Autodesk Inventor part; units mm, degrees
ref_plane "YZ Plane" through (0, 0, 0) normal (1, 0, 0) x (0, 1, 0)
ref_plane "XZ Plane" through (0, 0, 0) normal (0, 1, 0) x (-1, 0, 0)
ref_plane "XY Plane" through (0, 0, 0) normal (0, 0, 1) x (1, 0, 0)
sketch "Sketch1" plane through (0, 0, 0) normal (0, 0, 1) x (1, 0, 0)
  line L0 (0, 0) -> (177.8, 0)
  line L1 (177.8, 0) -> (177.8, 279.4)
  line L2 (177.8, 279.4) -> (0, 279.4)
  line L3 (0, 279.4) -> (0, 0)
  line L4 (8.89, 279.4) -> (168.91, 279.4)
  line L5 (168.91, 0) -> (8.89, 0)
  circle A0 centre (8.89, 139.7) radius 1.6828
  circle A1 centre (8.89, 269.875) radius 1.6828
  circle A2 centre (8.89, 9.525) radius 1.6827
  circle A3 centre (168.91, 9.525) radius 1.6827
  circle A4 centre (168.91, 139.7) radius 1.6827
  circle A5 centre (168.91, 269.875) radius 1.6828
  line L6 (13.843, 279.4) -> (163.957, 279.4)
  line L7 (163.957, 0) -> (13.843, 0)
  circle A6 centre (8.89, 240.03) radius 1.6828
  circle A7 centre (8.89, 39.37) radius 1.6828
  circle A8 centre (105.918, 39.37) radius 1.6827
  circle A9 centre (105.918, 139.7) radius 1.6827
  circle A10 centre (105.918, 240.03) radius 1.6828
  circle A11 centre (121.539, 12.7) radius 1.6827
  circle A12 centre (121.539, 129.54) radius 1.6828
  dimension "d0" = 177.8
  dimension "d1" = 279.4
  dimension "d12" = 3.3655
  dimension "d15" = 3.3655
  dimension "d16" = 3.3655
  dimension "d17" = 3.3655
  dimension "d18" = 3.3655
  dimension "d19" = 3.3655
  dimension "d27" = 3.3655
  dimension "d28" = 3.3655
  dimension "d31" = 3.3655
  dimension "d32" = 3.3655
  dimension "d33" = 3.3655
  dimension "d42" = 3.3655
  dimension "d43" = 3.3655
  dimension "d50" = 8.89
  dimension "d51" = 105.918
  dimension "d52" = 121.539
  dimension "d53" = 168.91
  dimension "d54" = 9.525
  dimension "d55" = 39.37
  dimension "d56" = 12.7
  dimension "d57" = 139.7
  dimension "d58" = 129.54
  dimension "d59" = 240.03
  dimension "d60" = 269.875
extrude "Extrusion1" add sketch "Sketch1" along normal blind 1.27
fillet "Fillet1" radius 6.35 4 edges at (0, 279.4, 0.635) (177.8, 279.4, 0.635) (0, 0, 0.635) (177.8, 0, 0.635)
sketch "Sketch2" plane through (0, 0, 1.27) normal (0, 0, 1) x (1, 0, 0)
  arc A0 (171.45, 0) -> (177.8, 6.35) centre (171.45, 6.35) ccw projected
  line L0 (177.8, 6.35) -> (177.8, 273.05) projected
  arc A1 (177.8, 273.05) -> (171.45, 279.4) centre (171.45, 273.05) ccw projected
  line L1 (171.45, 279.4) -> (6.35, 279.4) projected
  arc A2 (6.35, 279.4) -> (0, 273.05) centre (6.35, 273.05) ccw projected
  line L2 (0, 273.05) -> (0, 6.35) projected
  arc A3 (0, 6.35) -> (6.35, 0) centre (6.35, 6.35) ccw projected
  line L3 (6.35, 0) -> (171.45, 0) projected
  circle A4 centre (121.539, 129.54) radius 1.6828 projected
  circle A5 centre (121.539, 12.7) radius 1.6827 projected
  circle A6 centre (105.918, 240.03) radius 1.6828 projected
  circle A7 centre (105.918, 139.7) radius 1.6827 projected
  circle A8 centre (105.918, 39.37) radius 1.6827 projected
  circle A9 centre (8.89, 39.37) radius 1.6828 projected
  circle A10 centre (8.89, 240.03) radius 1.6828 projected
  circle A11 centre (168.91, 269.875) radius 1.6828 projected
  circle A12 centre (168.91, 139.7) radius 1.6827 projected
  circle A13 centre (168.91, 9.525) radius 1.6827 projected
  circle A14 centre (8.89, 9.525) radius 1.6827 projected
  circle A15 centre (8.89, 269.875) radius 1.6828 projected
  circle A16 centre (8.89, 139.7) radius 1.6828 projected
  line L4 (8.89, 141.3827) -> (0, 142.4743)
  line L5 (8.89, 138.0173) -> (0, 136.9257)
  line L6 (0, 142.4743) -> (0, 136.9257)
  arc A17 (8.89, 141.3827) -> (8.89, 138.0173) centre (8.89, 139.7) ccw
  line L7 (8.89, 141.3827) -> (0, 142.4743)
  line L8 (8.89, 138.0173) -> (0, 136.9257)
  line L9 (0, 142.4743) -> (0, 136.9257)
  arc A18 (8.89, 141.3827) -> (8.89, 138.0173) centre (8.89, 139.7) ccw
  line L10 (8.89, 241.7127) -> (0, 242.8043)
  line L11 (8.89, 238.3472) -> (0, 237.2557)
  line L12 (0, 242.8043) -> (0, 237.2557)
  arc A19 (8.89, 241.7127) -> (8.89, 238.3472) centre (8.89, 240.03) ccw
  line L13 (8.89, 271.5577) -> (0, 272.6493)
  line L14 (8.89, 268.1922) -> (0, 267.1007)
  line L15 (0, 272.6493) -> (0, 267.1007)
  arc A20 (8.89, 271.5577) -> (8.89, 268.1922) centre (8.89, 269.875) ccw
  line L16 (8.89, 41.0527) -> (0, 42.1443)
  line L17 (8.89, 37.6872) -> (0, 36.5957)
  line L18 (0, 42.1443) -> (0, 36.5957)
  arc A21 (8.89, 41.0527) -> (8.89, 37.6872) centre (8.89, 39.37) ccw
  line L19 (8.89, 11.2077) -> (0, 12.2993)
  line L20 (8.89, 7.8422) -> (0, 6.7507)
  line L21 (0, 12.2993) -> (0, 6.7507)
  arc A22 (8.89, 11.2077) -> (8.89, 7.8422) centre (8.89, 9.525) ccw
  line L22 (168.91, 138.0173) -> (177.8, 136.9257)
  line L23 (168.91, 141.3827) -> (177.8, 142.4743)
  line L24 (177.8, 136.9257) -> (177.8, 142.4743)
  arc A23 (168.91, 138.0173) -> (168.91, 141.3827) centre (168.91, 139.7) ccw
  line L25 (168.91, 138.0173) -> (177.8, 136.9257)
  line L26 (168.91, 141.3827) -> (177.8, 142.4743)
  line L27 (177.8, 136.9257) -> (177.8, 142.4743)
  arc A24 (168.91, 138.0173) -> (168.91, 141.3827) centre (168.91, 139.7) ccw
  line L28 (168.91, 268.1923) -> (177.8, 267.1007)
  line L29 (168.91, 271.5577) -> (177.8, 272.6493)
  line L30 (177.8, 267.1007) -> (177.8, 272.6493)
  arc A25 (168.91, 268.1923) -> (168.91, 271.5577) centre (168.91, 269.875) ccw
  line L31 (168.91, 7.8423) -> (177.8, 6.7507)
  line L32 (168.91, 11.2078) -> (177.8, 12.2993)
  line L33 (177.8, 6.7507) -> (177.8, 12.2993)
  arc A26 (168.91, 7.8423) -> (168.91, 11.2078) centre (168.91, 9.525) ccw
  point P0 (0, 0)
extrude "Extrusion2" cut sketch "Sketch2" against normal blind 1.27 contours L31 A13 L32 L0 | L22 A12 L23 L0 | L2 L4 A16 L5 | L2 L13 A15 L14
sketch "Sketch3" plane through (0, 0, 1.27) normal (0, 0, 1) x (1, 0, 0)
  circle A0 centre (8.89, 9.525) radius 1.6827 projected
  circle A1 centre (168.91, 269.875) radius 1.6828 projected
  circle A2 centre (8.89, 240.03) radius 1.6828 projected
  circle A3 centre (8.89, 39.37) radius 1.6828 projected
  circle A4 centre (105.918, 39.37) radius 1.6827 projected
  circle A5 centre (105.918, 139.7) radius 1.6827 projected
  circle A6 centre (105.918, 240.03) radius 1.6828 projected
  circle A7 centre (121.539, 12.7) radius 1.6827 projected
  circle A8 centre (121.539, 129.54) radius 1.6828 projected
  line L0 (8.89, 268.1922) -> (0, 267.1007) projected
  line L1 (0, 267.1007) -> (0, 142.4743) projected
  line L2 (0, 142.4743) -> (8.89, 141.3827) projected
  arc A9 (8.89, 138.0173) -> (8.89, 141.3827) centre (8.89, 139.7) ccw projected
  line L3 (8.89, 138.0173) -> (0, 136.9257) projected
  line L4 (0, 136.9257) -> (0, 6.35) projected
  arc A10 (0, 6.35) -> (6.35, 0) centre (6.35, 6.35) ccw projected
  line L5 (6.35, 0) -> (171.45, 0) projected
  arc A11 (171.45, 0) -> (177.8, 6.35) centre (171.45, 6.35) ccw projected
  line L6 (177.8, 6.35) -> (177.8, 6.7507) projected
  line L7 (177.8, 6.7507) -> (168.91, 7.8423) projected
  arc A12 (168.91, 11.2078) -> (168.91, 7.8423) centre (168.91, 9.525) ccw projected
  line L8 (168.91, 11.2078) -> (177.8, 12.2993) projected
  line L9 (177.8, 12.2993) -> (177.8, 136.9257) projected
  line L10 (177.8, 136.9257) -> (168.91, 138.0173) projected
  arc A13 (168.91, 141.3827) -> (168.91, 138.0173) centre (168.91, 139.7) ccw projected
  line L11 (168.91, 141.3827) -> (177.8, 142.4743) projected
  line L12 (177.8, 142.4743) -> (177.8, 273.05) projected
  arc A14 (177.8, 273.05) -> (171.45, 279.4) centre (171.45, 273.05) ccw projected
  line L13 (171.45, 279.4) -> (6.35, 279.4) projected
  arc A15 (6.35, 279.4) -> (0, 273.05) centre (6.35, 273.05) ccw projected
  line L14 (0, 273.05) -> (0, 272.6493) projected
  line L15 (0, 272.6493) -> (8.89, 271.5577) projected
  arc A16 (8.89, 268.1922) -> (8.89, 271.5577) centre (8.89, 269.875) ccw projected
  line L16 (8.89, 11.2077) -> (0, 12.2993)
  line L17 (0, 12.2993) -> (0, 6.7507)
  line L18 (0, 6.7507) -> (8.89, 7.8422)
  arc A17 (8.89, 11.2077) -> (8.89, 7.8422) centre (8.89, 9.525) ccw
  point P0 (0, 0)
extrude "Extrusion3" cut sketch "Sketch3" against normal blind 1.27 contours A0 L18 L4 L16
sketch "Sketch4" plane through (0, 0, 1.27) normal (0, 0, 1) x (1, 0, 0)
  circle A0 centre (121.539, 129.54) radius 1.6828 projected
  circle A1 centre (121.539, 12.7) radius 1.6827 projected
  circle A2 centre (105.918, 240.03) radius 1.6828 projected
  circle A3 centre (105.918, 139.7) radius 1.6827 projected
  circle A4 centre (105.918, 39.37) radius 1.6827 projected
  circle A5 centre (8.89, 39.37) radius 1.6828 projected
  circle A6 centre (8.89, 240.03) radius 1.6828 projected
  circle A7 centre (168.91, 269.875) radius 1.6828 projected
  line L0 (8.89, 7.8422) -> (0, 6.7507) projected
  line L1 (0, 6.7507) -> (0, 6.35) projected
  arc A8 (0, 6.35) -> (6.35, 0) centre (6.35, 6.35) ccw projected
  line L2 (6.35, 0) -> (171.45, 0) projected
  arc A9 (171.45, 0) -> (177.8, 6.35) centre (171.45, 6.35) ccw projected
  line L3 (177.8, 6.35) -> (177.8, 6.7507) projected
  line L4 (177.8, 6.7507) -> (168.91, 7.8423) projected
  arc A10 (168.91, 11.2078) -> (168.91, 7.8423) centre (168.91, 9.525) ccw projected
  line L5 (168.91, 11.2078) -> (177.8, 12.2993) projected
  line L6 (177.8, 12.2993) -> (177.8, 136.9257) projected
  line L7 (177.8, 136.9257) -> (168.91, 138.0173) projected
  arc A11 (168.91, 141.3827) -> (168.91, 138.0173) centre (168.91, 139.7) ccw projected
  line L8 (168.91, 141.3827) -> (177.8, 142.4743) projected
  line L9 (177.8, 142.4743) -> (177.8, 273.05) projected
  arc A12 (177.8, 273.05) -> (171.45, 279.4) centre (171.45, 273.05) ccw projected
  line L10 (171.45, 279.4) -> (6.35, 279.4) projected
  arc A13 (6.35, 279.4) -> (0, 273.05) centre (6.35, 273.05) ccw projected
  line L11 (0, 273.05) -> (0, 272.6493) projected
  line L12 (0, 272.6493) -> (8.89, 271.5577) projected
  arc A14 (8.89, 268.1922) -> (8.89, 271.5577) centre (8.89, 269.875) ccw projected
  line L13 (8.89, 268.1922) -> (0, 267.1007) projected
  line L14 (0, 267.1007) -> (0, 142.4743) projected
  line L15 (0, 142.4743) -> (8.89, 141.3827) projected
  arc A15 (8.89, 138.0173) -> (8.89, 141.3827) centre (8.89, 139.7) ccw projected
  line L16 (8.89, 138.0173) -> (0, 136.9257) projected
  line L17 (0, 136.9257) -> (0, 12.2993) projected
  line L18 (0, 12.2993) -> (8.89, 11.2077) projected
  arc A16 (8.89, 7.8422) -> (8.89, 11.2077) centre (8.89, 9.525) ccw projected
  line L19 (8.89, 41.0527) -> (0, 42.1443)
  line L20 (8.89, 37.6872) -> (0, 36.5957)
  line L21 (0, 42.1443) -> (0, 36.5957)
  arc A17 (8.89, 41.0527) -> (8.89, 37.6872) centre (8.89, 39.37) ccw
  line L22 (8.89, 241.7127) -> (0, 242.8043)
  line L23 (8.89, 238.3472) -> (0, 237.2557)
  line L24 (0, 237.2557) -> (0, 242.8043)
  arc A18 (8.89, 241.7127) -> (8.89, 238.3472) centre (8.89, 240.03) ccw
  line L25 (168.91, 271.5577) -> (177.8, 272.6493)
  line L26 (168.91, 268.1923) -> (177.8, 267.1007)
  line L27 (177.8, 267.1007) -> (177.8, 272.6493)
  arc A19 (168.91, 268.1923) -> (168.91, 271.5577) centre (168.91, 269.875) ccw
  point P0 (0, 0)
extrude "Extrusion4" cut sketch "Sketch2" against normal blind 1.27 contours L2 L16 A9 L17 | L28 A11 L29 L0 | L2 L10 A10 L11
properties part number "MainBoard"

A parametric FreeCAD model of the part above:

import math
import FreeCAD as App
import Part
import Sketcher
Q = App.Units.Quantity


def edges_at(feature, points):
    """Names of the edges that pass closest to the given points."""
    edges = feature.Shape.Edges
    near = lambda p: min(range(len(edges)), key=lambda i: edges[i].distToShape(Part.Vertex(*p))[0])
    return sorted({f"Edge{near(p) + 1}" for p in points})

doc = App.newDocument("Part")
body = doc.addObject("PartDesign::Body", "Body")

# Sketch on XY plane
sketch1 = body.newObject("Sketcher::SketchObject", "Sketch")
sketch1.AttachmentSupport = (doc.getObject("XY_Plane"), [""])
sketch1.MapMode = "FlatFace"
sketch1.addGeometry([
    Part.LineSegment(App.Vector(0, 279.4, 0), App.Vector(0, 0, 0)),  # 0
    Part.LineSegment(App.Vector(0, 0, 0), App.Vector(177.8, 0, 0)),  # 1
    Part.LineSegment(App.Vector(177.8, 0, 0), App.Vector(177.8, 279.4, 0)),  # 2
    Part.LineSegment(App.Vector(177.8, 279.4, 0), App.Vector(0, 279.4, 0)),  # 3
    Part.Circle(App.Vector(8.9, 9.5, 0), App.Vector(0, 0, 1), 1.7),  # 4
    Part.Circle(App.Vector(8.9, 39.4, 0), App.Vector(0, 0, 1), 1.7),  # 5
    Part.Circle(App.Vector(121.5, 12.7, 0), App.Vector(0, 0, 1), 1.7),  # 6
    Part.Circle(App.Vector(105.9, 39.4, 0), App.Vector(0, 0, 1), 1.7),  # 7
    Part.Circle(App.Vector(168.9, 9.5, 0), App.Vector(0, 0, 1), 1.7),  # 8
    Part.Circle(App.Vector(121.5, 129.5, 0), App.Vector(0, 0, 1), 1.7),  # 9
    Part.Circle(App.Vector(8.9, 139.7, 0), App.Vector(0, 0, 1), 1.7),  # 10
    Part.Circle(App.Vector(8.9, 240, 0), App.Vector(0, 0, 1), 1.7),  # 11
    Part.Circle(App.Vector(8.9, 269.9, 0), App.Vector(0, 0, 1), 1.7),  # 12
    Part.Circle(App.Vector(105.9, 139.7, 0), App.Vector(0, 0, 1), 1.7),  # 13
    Part.Circle(App.Vector(168.9, 139.7, 0), App.Vector(0, 0, 1), 1.7),  # 14
    Part.Circle(App.Vector(105.9, 240, 0), App.Vector(0, 0, 1), 1.7),  # 15
    Part.Circle(App.Vector(168.9, 269.9, 0), App.Vector(0, 0, 1), 1.7),  # 16
], False)
sketch1.addConstraint([
    Sketcher.Constraint("Coincident", 0, 2, 1, 1),
    Sketcher.Constraint("Coincident", 1, 2, 2, 1),
    Sketcher.Constraint("Coincident", 2, 2, 3, 1),
    Sketcher.Constraint("Coincident", 3, 2, 0, 1),
    Sketcher.Constraint("Vertical", 0),
    Sketcher.Constraint("Horizontal", 1),
    Sketcher.Constraint("Vertical", 2),
    Sketcher.Constraint("Horizontal", 3),
    Sketcher.Constraint("Coincident", 0, 2, -1, 1),
    Sketcher.Constraint("Equal", 4, 5),
    Sketcher.Constraint("Equal", 5, 6),
    Sketcher.Constraint("Equal", 6, 7),
    Sketcher.Constraint("Equal", 7, 8),
    Sketcher.Constraint("Equal", 8, 9),
    Sketcher.Constraint("Equal", 9, 10),
    Sketcher.Constraint("Equal", 10, 11),
    Sketcher.Constraint("Equal", 11, 12),
    Sketcher.Constraint("Equal", 12, 13),
    Sketcher.Constraint("Equal", 13, 14),
    Sketcher.Constraint("Equal", 14, 15),
    Sketcher.Constraint("Equal", 15, 16),
    Sketcher.Constraint("Horizontal", 5, 3, 7, 3),
    Sketcher.Constraint("Horizontal", 4, 3, 8, 3),
    Sketcher.Constraint("Horizontal", 10, 3, 13, 3),
    Sketcher.Constraint("Horizontal", 13, 3, 14, 3),
    Sketcher.Constraint("Horizontal", 11, 3, 15, 3),
    Sketcher.Constraint("Horizontal", 12, 3, 16, 3),
    Sketcher.Constraint("Vertical", 4, 3, 5, 3),
    Sketcher.Constraint("Vertical", 6, 3, 9, 3),
    Sketcher.Constraint("Vertical", 5, 3, 10, 3),
    Sketcher.Constraint("Vertical", 10, 3, 11, 3),
    Sketcher.Constraint("Vertical", 11, 3, 12, 3),
    Sketcher.Constraint("Vertical", 7, 3, 13, 3),
    Sketcher.Constraint("Vertical", 8, 3, 14, 3),
    Sketcher.Constraint("Vertical", 13, 3, 15, 3),
    Sketcher.Constraint("Vertical", 14, 3, 16, 3),
    Sketcher.Constraint("DistanceX", 1, 1, 1, 2, Q("7 in")),
    Sketcher.Constraint("DistanceY", 0, 2, 0, 1, Q("11 in")),
    Sketcher.Constraint("Diameter", 4, Q("0.1325 in")),
    Sketcher.Constraint("DistanceY", -1, 1, 6, 3, Q("0.5 in")),
    Sketcher.Constraint("DistanceY", -1, 1, 9, 3, Q("5.1 in")),
    Sketcher.Constraint("DistanceY", -1, 1, 10, 3, Q("5.5 in")),
    Sketcher.Constraint("DistanceX", -1, 1, 4, 3, Q("0.35 in")),
    Sketcher.Constraint("DistanceY", -1, 1, 5, 3, Q("1.55 in")),
    Sketcher.Constraint("DistanceX", -1, 1, 7, 3, Q("4.17 in")),
    Sketcher.Constraint("DistanceX", -1, 1, 8, 3, Q("6.65 in")),
    Sketcher.Constraint("DistanceY", -1, 1, 11, 3, Q("9.45 in")),
    Sketcher.Constraint("DistanceY", -1, 1, 4, 3, Q("0.375 in")),
    Sketcher.Constraint("DistanceX", -1, 1, 6, 3, Q("4.785 in")),
    Sketcher.Constraint("DistanceY", -1, 1, 12, 3, Q("10.625 in")),
])
pad1 = body.newObject("PartDesign::Pad", "Pad")
pad1.Profile = sketch1
pad1.Length = Q("0.05 in")
doc.recompute()

fillet = body.newObject("PartDesign::Fillet", "Fillet")
fillet.Base = (pad1, edges_at(pad1, [
    (0, 279.4, 0.635),
    (177.8, 279.4, 0.635),
    (0, 0, 0.635),
    (177.8, 0, 0.635),
]))
fillet.Radius = Q("0.25 in")

# Sketch on XY plane
sketch2 = body.newObject("Sketcher::SketchObject", "Sketch001")
sketch2.AttachmentSupport = (doc.getObject("XY_Plane"), [""])
sketch2.MapMode = "FlatFace"
sketch2.AttachmentOffset = App.Placement(App.Vector(0, 0, 0.05 * 25.4), App.Rotation())
sketch2.addGeometry([
    Part.LineSegment(App.Vector(168.9, 7.8, 0), App.Vector(177.8, 6.8, 0)),  # 0
    Part.LineSegment(App.Vector(177.8, 6.8, 0), App.Vector(177.8, 12.3, 0)),  # 1
    Part.LineSegment(App.Vector(177.8, 12.3, 0), App.Vector(168.9, 11.2, 0)),  # 2
    Part.ArcOfCircle(Part.Circle(App.Vector(168.9, 9.5, 0), App.Vector(0, 0, 1), 1.7), math.radians(-90), math.radians(90)),  # 3
    Part.LineSegment(App.Vector(168.9, 138, 0), App.Vector(177.8, 136.9, 0)),  # 4
    Part.LineSegment(App.Vector(177.8, 136.9, 0), App.Vector(177.8, 142.5, 0)),  # 5
    Part.LineSegment(App.Vector(177.8, 142.5, 0), App.Vector(168.9, 141.4, 0)),  # 6
    Part.ArcOfCircle(Part.Circle(App.Vector(168.9, 139.7, 0), App.Vector(0, 0, 1), 1.7), math.radians(-90), math.radians(90)),  # 7
    Part.LineSegment(App.Vector(0, 142.5, 0), App.Vector(0, 136.9, 0)),  # 8
    Part.LineSegment(App.Vector(0, 136.9, 0), App.Vector(8.9, 138, 0)),  # 9
    Part.ArcOfCircle(Part.Circle(App.Vector(8.9, 139.7, 0), App.Vector(0, 0, 1), 1.7), math.radians(90), math.radians(270)),  # 10
    Part.LineSegment(App.Vector(8.9, 141.4, 0), App.Vector(0, 142.5, 0)),  # 11
    Part.LineSegment(App.Vector(0, 272.6, 0), App.Vector(0, 267.1, 0)),  # 12
    Part.LineSegment(App.Vector(0, 267.1, 0), App.Vector(8.9, 268.2, 0)),  # 13
    Part.ArcOfCircle(Part.Circle(App.Vector(8.9, 269.9, 0), App.Vector(0, 0, 1), 1.7), math.radians(90), math.radians(270)),  # 14
    Part.LineSegment(App.Vector(8.9, 271.6, 0), App.Vector(0, 272.6, 0)),  # 15
], False)
sketch2.addConstraint([
    Sketcher.Constraint("Coincident", 0, 2, 1, 1),
    Sketcher.Constraint("Coincident", 1, 2, 2, 1),
    Sketcher.Constraint("Coincident", 2, 2, 3, 2),
    Sketcher.Constraint("Coincident", 3, 1, 0, 1),
    Sketcher.Constraint("Coincident", 4, 2, 5, 1),
    Sketcher.Constraint("Coincident", 5, 2, 6, 1),
    Sketcher.Constraint("Coincident", 6, 2, 7, 2),
    Sketcher.Constraint("Coincident", 7, 1, 4, 1),
    Sketcher.Constraint("Coincident", 8, 2, 9, 1),
    Sketcher.Constraint("Coincident", 9, 2, 10, 2),
    Sketcher.Constraint("Coincident", 10, 1, 11, 1),
    Sketcher.Constraint("Coincident", 11, 2, 8, 1),
    Sketcher.Constraint("Coincident", 12, 2, 13, 1),
    Sketcher.Constraint("Coincident", 13, 2, 14, 2),
    Sketcher.Constraint("Coincident", 14, 1, 15, 1),
    Sketcher.Constraint("Coincident", 15, 2, 12, 1),
    Sketcher.Constraint("Vertical", 1),
    Sketcher.Constraint("Vertical", 5),
    Sketcher.Constraint("Vertical", 8),
    Sketcher.Constraint("Vertical", 12),
    Sketcher.Constraint("Equal", 3, 7),
    Sketcher.Constraint("Equal", 7, 10),
    Sketcher.Constraint("Equal", 10, 14),
    Sketcher.Constraint("PointOnObject", 8, 2, -2),
    Sketcher.Constraint("PointOnObject", 12, 2, -2),
    Sketcher.Constraint("Parallel", 0, 4),
    Sketcher.Constraint("Parallel", 2, 6),
    Sketcher.Constraint("Parallel", 6, 9),
    Sketcher.Constraint("Parallel", 4, 11),
    Sketcher.Constraint("Parallel", 9, 13),
    Sketcher.Constraint("Parallel", 11, 15),
    Sketcher.Constraint("Horizontal", 7, 3, 10, 3),
    Sketcher.Constraint("Horizontal", 4, 2, 8, 2),
    Sketcher.Constraint("Horizontal", 5, 2, 11, 2),
    Sketcher.Constraint("Vertical", 3, 3, 7, 3),
    Sketcher.Constraint("Vertical", 10, 3, 14, 3),
    Sketcher.Constraint("Vertical", 7, 3, 2, 2),
    Sketcher.Constraint("Vertical", 2, 2, 3, 1),
    Sketcher.Constraint("Vertical", 1, 2, 4, 2),
    Sketcher.Constraint("Vertical", 3, 1, 6, 2),
    Sketcher.Constraint("Vertical", 6, 2, 7, 1),
    Sketcher.Constraint("Vertical", 14, 3, 9, 2),
    Sketcher.Constraint("Vertical", 9, 2, 10, 1),
    Sketcher.Constraint("Vertical", 10, 1, 13, 2),
    Sketcher.Constraint("Vertical", 13, 2, 14, 1),
    Sketcher.Constraint("DistanceX", -1, 1, 0, 2, Q("7 in")),
    Sketcher.Constraint("Angle", 0, Q("-7.0003 deg")),
    Sketcher.Constraint("DistanceY", -1, 1, 7, 3, Q("5.5 in")),
    Sketcher.Constraint("DistanceX", 10, 3, 7, 3, Q("6.3 in")),
    Sketcher.Constraint("Radius", 3, Q("1.6827 mm")),
    Sketcher.Constraint("DistanceY", 3, 3, 14, 3, Q("10.25 in")),
    Sketcher.Constraint("DistanceY", -1, 1, 3, 3, Q("0.375 in")),
])
pocket1 = body.newObject("PartDesign::Pocket", "Pocket")
pocket1.Profile = sketch2
pocket1.Length = Q("0.05 in")

# Sketch on XY plane
sketch3 = body.newObject("Sketcher::SketchObject", "Sketch002")
sketch3.AttachmentSupport = (doc.getObject("XY_Plane"), [""])
sketch3.MapMode = "FlatFace"
sketch3.AttachmentOffset = App.Placement(App.Vector(0, 0, 0.05 * 25.4), App.Rotation())
sketch3.addGeometry([
    Part.ArcOfCircle(Part.Circle(App.Vector(8.9, 9.5, 0), App.Vector(0, 0, 1), 1.7), math.radians(90), math.radians(270)),
    Part.LineSegment(App.Vector(8.9, 11.2, 0), App.Vector(0, 12.3, 0)),
    Part.LineSegment(App.Vector(0, 12.3, 0), App.Vector(0, 6.8, 0)),
    Part.LineSegment(App.Vector(0, 6.8, 0), App.Vector(8.9, 7.8, 0)),
], False)
sketch3.addConstraint([
    Sketcher.Constraint("Coincident", 0, 1, 1, 1),
    Sketcher.Constraint("Coincident", 1, 2, 2, 1),
    Sketcher.Constraint("Coincident", 2, 2, 3, 1),
    Sketcher.Constraint("Coincident", 3, 2, 0, 2),
    Sketcher.Constraint("Vertical", 2),
    Sketcher.Constraint("PointOnObject", 1, 2, -2),
    Sketcher.Constraint("Vertical", 0, 1, 3, 2),
    Sketcher.Constraint("Equal", 1, 3),
    Sketcher.Constraint("Angle", 1, Q("172.9997 deg")),
    Sketcher.Constraint("DistanceX", -1, 1, 0, 3, Q("0.35 in")),
    Sketcher.Constraint("DistanceX", -1, 1, 0, 1, Q("0.35 in")),
    Sketcher.Constraint("Radius", 0, Q("1.6827 mm")),
    Sketcher.Constraint("DistanceY", -1, 1, 0, 3, Q("0.375 in")),
])
pocket2 = body.newObject("PartDesign::Pocket", "Pocket001")
pocket2.Profile = sketch3
pocket2.Length = Q("0.05 in")

# Sketch on XY plane
sketch4 = body.newObject("Sketcher::SketchObject", "Sketch003")
sketch4.AttachmentSupport = (doc.getObject("XY_Plane"), [""])
sketch4.MapMode = "FlatFace"
sketch4.AttachmentOffset = App.Placement(App.Vector(0, 0, 0.05 * 25.4), App.Rotation())
sketch4.addGeometry([
    Part.LineSegment(App.Vector(0, 42.1, 0), App.Vector(0, 36.6, 0)),  # 0
    Part.LineSegment(App.Vector(0, 36.6, 0), App.Vector(8.9, 37.7, 0)),  # 1
    Part.ArcOfCircle(Part.Circle(App.Vector(8.9, 39.4, 0), App.Vector(0, 0, 1), 1.7), math.radians(90), math.radians(270)),  # 2
    Part.LineSegment(App.Vector(8.9, 41.1, 0), App.Vector(0, 42.1, 0)),  # 3
    Part.LineSegment(App.Vector(168.9, 268.2, 0), App.Vector(177.8, 267.1, 0)),  # 4
    Part.LineSegment(App.Vector(177.8, 267.1, 0), App.Vector(177.8, 272.6, 0)),  # 5
    Part.LineSegment(App.Vector(177.8, 272.6, 0), App.Vector(168.9, 271.6, 0)),  # 6
    Part.ArcOfCircle(Part.Circle(App.Vector(168.9, 269.9, 0), App.Vector(0, 0, 1), 1.7), math.radians(-90), math.radians(90)),  # 7
    Part.LineSegment(App.Vector(0, 242.8, 0), App.Vector(0, 237.3, 0)),  # 8
    Part.LineSegment(App.Vector(0, 237.3, 0), App.Vector(8.9, 238.3, 0)),  # 9
    Part.ArcOfCircle(Part.Circle(App.Vector(8.9, 240, 0), App.Vector(0, 0, 1), 1.7), math.radians(90), math.radians(270)),  # 10
    Part.LineSegment(App.Vector(8.9, 241.7, 0), App.Vector(0, 242.8, 0)),  # 11
], False)
sketch4.addConstraint([
    Sketcher.Constraint("Coincident", 0, 2, 1, 1),
    Sketcher.Constraint("Coincident", 1, 2, 2, 2),
    Sketcher.Constraint("Coincident", 2, 1, 3, 1),
    Sketcher.Constraint("Coincident", 3, 2, 0, 1),
    Sketcher.Constraint("Coincident", 4, 2, 5, 1),
    Sketcher.Constraint("Coincident", 5, 2, 6, 1),
    Sketcher.Constraint("Coincident", 6, 2, 7, 2),
    Sketcher.Constraint("Coincident", 7, 1, 4, 1),
    Sketcher.Constraint("Coincident", 8, 2, 9, 1),
    Sketcher.Constraint("Coincident", 9, 2, 10, 2),
    Sketcher.Constraint("Coincident", 10, 1, 11, 1),
    Sketcher.Constraint("Coincident", 11, 2, 8, 1),
    Sketcher.Constraint("Vertical", 0),
    Sketcher.Constraint("Vertical", 5),
    Sketcher.Constraint("Vertical", 8),
    Sketcher.Constraint("Equal", 2, 7),
    Sketcher.Constraint("Equal", 7, 10),
    Sketcher.Constraint("PointOnObject", 0, 2, -2),
    Sketcher.Constraint("PointOnObject", 8, 2, -2),
    Sketcher.Constraint("Parallel", 3, 4),
    Sketcher.Constraint("Parallel", 1, 6),
    Sketcher.Constraint("Parallel", 6, 9),
    Sketcher.Constraint("Parallel", 4, 11),
    Sketcher.Constraint("Vertical", 2, 3, 10, 3),
    Sketcher.Constraint("Vertical", 10, 3, 1, 2),
    Sketcher.Constraint("Vertical", 1, 2, 2, 1),
    Sketcher.Constraint("Vertical", 7, 3, 6, 2),
    Sketcher.Constraint("Vertical", 6, 2, 7, 1),
    Sketcher.Constraint("Vertical", 2, 1, 9, 2),
    Sketcher.Constraint("Vertical", 9, 2, 10, 1),
    Sketcher.Constraint("Equal", 0, 5),
    Sketcher.Constraint("Equal", 1, 3),
    Sketcher.Constraint("DistanceX", -1, 1, 4, 2, Q("7 in")),
    Sketcher.Constraint("Angle", 1, Q("6.9997 deg")),
    Sketcher.Constraint("DistanceX", 2, 3, 7, 3, Q("6.3 in")),
    Sketcher.Constraint("DistanceY", 2, 3, 10, 3, Q("7.9 in")),
    Sketcher.Constraint("DistanceY", -1, 1, 2, 3, Q("1.55 in")),
    Sketcher.Constraint("Radius", 2, Q("1.6828 mm")),
    Sketcher.Constraint("DistanceY", -1, 1, 7, 3, Q("10.625 in")),
])
pocket3 = body.newObject("PartDesign::Pocket", "Pocket002")
pocket3.Profile = sketch4
pocket3.Length = Q("0.05 in")

doc.recompute()
